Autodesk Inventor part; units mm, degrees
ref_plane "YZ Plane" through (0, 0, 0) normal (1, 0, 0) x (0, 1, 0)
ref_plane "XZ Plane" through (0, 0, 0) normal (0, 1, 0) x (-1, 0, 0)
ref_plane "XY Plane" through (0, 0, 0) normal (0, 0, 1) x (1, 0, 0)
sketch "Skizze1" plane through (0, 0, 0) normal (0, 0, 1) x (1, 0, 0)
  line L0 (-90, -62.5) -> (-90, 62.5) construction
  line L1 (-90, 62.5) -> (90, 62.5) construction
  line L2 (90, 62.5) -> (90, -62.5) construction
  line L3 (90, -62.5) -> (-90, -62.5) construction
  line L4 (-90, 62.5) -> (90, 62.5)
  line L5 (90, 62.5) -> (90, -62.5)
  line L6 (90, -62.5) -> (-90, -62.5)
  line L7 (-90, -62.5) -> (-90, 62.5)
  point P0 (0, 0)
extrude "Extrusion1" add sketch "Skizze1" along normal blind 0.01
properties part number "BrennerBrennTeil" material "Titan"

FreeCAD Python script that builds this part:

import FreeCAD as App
import Part
import Sketcher
Q = App.Units.Quantity

doc = App.newDocument("Part")
body = doc.addObject("PartDesign::Body", "Body")

# Sketch on XY plane
sketch1 = body.newObject("Sketcher::SketchObject", "Sketch")
sketch1.AttachmentSupport = (doc.getObject("XY_Plane"), [""])
sketch1.MapMode = "FlatFace"
sketch1.addGeometry([
    Part.LineSegment(App.Vector(90, 62.5, 0), App.Vector(-90, 62.5, 0)),
    Part.LineSegment(App.Vector(-90, 62.5, 0), App.Vector(-90, -62.5, 0)),
    Part.LineSegment(App.Vector(-90, -62.5, 0), App.Vector(90, -62.5, 0)),
    Part.LineSegment(App.Vector(90, -62.5, 0), App.Vector(90, 62.5, 0)),
], False)
sketch1.addConstraint([
    Sketcher.Constraint("Coincident", 0, 2, 1, 1),
    Sketcher.Constraint("Coincident", 1, 2, 2, 1),
    Sketcher.Constraint("Coincident", 2, 2, 3, 1),
    Sketcher.Constraint("Coincident", 3, 2, 0, 1),
    Sketcher.Constraint("Horizontal", 0),
    Sketcher.Constraint("Vertical", 1),
    Sketcher.Constraint("Horizontal", 2),
    Sketcher.Constraint("Vertical", 3),
    Sketcher.Constraint("Symmetric", 0, 2, 2, 2, -1, 1),
    Sketcher.Constraint("DistanceX", 0, 2, 0, 1, Q("180 mm")),
    Sketcher.Constraint("DistanceY", 1, 2, 1, 1, Q("125 mm")),
])
pad1 = body.newObject("PartDesign::Pad", "Pad")
pad1.Profile = sketch1
pad1.Length = 0.01

doc.recompute()
